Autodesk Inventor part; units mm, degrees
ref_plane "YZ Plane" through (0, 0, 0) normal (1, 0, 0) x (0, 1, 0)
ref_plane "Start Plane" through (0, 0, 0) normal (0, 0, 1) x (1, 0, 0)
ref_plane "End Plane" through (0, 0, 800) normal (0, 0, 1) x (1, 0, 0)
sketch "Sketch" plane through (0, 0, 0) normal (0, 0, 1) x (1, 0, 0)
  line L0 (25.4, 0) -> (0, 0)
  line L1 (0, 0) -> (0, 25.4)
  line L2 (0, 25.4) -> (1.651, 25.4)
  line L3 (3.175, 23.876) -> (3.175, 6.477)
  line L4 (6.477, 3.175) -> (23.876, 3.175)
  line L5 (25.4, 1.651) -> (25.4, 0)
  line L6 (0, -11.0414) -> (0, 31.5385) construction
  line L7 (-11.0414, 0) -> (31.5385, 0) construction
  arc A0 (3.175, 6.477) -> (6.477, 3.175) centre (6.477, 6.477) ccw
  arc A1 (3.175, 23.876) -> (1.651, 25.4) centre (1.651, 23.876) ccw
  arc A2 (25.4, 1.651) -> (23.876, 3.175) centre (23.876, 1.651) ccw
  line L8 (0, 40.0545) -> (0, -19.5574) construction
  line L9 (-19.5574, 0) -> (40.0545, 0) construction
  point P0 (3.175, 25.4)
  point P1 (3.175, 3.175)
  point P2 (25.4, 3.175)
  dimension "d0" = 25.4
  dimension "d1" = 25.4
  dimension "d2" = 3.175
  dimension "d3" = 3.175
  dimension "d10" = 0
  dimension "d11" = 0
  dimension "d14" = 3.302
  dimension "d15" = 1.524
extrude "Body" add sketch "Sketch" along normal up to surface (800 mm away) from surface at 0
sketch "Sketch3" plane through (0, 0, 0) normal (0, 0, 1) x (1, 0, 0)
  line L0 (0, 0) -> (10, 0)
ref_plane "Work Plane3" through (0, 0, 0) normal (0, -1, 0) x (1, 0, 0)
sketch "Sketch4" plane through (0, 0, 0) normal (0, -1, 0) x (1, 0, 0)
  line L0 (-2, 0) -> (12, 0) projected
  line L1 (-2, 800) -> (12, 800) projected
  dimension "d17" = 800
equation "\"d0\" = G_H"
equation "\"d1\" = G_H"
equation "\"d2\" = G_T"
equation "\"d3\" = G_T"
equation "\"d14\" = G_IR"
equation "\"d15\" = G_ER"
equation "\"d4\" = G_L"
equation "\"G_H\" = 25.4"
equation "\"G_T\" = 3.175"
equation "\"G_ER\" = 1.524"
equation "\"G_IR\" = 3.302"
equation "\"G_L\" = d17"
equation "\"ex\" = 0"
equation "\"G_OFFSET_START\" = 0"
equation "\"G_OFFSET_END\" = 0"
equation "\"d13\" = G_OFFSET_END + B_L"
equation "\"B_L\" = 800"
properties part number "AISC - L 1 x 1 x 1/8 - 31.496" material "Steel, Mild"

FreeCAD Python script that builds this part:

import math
import FreeCAD as App
import Part
import Sketcher
Q = App.Units.Quantity

doc = App.newDocument("Part")
params = doc.addObject("Spreadsheet::Sheet", "Params")
for row, (alias, value) in enumerate([
    ("sketch1_width", "1 in"),
    ("sketch1_radius", "0.06 in"),
    ("sketch1_radius2", "0.13 in"),
    ("pad1_length", "800 mm"),
], start=1):
    params.set(f"A{row}", alias)
    params.set(f"B{row}", "=" + value)
    params.setAlias(f"B{row}", alias)

body = doc.addObject("PartDesign::Body", "Body")

# Sketch on XY plane
sketch1 = body.newObject("Sketcher::SketchObject", "Sketch")
sketch1.AttachmentSupport = (doc.getObject("XY_Plane"), [""])
sketch1.MapMode = "FlatFace"
sketch1.addGeometry([
    Part.LineSegment(App.Vector(0, 0, 0), App.Vector(25.4, 0, 0)),  # 0
    Part.LineSegment(App.Vector(25.4, 0, 0), App.Vector(25.4, 1.7, 0)),  # 1
    Part.ArcOfCircle(Part.Circle(App.Vector(23.9, 1.7, 0), App.Vector(0, 0, 1), 1.5), math.radians(0), math.radians(90)),  # 2
    Part.LineSegment(App.Vector(23.9, 3.2, 0), App.Vector(6.5, 3.2, 0)),  # 3
    Part.ArcOfCircle(Part.Circle(App.Vector(6.5, 6.5, 0), App.Vector(0, 0, 1), 3.3), math.radians(180), math.radians(270)),  # 4
    Part.LineSegment(App.Vector(3.2, 6.5, 0), App.Vector(3.2, 23.9, 0)),  # 5
    Part.ArcOfCircle(Part.Circle(App.Vector(1.7, 23.9, 0), App.Vector(0, 0, 1), 1.5), math.radians(0), math.radians(90)),  # 6
    Part.LineSegment(App.Vector(1.7, 25.4, 0), App.Vector(0, 25.4, 0)),  # 7
    Part.LineSegment(App.Vector(0, 25.4, 0), App.Vector(0, 0, 0)),  # 8
], False)
sketch1.addConstraint([
    Sketcher.Constraint("Coincident", 0, 2, 1, 1),
    Sketcher.Constraint("Tangent", 1, 2, 2, 1),
    Sketcher.Constraint("Tangent", 2, 2, 3, 1),
    Sketcher.Constraint("Tangent", 3, 2, 4, 2),
    Sketcher.Constraint("Tangent", 4, 1, 5, 1),
    Sketcher.Constraint("Tangent", 5, 2, 6, 1),
    Sketcher.Constraint("Tangent", 6, 2, 7, 1),
    Sketcher.Constraint("Coincident", 7, 2, 8, 1),
    Sketcher.Constraint("Coincident", 8, 2, 0, 1),
    Sketcher.Constraint("Horizontal", 0),
    Sketcher.Constraint("Vertical", 1),
    Sketcher.Constraint("Horizontal", 3),
    Sketcher.Constraint("Vertical", 5),
    Sketcher.Constraint("Horizontal", 7),
    Sketcher.Constraint("Vertical", 8),
    Sketcher.Constraint("Coincident", 8, 2, -1, 1),
    Sketcher.Constraint("Equal", 2, 6),
    Sketcher.Constraint("Equal", 7, 1),
    Sketcher.Constraint("Equal", 3, 5),
    Sketcher.Constraint("DistanceX", 0, 1, 0, 2, Q("1 in")),
    Sketcher.Constraint("Radius", 2, Q("0.06 in")),
    Sketcher.Constraint("Radius", 4, Q("0.13 in")),
    Sketcher.Constraint("DistanceY", -1, 1, 2, 2, Q("0.125 in")),
])
sketch1.setExpression("Constraints[19]", "Params.sketch1_width")
sketch1.setExpression("Constraints[20]", "Params.sketch1_radius")
sketch1.setExpression("Constraints[21]", "Params.sketch1_radius2")
pad1 = body.newObject("PartDesign::Pad", "Pad")
pad1.Profile = sketch1
pad1.setExpression("Length", "Params.pad1_length")

doc.recompute()
